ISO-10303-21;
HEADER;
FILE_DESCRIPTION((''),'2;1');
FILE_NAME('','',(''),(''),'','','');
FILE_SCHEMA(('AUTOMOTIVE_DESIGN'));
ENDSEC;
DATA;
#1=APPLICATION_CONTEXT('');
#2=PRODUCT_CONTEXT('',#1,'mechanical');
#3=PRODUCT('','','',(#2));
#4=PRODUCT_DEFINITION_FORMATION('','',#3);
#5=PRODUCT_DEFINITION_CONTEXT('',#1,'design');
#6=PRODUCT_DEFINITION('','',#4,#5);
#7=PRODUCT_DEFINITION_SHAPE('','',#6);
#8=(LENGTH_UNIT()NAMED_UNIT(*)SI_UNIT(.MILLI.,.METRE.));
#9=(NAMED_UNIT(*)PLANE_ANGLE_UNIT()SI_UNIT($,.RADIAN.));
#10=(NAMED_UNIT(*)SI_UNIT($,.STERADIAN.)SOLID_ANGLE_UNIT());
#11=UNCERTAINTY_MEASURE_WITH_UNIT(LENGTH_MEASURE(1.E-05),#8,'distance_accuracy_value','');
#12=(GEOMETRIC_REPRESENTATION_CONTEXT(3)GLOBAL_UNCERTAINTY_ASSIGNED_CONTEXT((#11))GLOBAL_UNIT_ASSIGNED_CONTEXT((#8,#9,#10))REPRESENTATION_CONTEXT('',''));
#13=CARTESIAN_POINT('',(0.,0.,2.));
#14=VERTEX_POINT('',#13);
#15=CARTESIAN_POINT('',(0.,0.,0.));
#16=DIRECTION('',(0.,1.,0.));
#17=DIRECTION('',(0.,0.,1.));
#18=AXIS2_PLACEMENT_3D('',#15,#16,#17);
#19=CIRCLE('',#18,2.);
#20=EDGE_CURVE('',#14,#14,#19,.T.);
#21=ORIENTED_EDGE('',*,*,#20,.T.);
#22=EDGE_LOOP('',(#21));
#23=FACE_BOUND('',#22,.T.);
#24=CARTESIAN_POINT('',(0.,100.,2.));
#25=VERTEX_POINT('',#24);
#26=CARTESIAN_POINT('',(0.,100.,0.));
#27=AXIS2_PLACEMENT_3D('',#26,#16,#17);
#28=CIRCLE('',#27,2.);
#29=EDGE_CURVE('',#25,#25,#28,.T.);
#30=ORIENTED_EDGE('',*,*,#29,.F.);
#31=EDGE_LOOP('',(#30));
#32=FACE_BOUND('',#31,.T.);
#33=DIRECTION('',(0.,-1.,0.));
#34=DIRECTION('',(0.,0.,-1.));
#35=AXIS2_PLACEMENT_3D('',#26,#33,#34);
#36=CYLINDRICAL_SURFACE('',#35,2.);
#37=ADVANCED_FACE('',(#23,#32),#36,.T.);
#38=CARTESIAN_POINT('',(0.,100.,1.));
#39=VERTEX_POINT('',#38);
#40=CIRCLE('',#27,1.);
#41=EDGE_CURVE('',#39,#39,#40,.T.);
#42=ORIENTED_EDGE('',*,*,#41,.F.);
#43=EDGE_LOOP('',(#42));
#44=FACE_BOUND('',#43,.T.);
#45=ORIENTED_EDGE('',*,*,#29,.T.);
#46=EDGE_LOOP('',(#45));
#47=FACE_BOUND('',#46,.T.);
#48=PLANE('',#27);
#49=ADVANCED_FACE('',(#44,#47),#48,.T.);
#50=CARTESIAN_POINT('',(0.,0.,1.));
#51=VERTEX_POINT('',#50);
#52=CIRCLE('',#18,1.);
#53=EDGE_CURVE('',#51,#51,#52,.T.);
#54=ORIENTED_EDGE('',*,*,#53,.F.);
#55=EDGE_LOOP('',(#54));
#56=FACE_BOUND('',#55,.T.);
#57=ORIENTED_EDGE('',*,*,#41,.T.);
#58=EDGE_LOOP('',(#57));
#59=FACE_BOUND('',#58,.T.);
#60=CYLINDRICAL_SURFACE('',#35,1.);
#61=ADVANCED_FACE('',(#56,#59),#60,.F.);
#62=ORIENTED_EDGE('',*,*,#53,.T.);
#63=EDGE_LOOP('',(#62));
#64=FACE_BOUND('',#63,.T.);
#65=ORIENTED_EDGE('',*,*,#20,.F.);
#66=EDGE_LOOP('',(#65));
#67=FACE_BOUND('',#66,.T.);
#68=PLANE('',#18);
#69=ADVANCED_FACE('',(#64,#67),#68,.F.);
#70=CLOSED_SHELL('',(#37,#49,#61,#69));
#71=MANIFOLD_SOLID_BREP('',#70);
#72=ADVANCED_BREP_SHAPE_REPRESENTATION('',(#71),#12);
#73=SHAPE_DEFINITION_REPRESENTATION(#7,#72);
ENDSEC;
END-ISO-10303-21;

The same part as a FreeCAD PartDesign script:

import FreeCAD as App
import Part
import Sketcher
from FreeCAD import Vector
Q = App.Units.Quantity

doc = App.newDocument("Part")
body = doc.addObject("PartDesign::Body", "Body")

sketch1 = body.newObject("Sketcher::SketchObject", "Sketch")
sketch1.AttachmentSupport = (doc.getObject("XZ_Plane"), [""])
sketch1.MapMode = "FlatFace"
sketch1.addGeometry([
    Part.Circle(Vector(0, 0, 0), Vector(0, 0, 1), 2),
    Part.Circle(Vector(0, 0, 0), Vector(0, 0, 1), 1),
], False)
sketch1.addConstraint([
    Sketcher.Constraint("Coincident", 0, 3, -1, 1),
    Sketcher.Constraint("Coincident", 1, 3, -1, 1),
    Sketcher.Constraint("Diameter", 0, Q("4 mm")),
    Sketcher.Constraint("Diameter", 1, Q("2 mm")),
])
pad1 = body.newObject("PartDesign::Pad", "Pad")
pad1.Profile = sketch1
pad1.Length = 100
pad1.Reversed = True

doc.recompute()
